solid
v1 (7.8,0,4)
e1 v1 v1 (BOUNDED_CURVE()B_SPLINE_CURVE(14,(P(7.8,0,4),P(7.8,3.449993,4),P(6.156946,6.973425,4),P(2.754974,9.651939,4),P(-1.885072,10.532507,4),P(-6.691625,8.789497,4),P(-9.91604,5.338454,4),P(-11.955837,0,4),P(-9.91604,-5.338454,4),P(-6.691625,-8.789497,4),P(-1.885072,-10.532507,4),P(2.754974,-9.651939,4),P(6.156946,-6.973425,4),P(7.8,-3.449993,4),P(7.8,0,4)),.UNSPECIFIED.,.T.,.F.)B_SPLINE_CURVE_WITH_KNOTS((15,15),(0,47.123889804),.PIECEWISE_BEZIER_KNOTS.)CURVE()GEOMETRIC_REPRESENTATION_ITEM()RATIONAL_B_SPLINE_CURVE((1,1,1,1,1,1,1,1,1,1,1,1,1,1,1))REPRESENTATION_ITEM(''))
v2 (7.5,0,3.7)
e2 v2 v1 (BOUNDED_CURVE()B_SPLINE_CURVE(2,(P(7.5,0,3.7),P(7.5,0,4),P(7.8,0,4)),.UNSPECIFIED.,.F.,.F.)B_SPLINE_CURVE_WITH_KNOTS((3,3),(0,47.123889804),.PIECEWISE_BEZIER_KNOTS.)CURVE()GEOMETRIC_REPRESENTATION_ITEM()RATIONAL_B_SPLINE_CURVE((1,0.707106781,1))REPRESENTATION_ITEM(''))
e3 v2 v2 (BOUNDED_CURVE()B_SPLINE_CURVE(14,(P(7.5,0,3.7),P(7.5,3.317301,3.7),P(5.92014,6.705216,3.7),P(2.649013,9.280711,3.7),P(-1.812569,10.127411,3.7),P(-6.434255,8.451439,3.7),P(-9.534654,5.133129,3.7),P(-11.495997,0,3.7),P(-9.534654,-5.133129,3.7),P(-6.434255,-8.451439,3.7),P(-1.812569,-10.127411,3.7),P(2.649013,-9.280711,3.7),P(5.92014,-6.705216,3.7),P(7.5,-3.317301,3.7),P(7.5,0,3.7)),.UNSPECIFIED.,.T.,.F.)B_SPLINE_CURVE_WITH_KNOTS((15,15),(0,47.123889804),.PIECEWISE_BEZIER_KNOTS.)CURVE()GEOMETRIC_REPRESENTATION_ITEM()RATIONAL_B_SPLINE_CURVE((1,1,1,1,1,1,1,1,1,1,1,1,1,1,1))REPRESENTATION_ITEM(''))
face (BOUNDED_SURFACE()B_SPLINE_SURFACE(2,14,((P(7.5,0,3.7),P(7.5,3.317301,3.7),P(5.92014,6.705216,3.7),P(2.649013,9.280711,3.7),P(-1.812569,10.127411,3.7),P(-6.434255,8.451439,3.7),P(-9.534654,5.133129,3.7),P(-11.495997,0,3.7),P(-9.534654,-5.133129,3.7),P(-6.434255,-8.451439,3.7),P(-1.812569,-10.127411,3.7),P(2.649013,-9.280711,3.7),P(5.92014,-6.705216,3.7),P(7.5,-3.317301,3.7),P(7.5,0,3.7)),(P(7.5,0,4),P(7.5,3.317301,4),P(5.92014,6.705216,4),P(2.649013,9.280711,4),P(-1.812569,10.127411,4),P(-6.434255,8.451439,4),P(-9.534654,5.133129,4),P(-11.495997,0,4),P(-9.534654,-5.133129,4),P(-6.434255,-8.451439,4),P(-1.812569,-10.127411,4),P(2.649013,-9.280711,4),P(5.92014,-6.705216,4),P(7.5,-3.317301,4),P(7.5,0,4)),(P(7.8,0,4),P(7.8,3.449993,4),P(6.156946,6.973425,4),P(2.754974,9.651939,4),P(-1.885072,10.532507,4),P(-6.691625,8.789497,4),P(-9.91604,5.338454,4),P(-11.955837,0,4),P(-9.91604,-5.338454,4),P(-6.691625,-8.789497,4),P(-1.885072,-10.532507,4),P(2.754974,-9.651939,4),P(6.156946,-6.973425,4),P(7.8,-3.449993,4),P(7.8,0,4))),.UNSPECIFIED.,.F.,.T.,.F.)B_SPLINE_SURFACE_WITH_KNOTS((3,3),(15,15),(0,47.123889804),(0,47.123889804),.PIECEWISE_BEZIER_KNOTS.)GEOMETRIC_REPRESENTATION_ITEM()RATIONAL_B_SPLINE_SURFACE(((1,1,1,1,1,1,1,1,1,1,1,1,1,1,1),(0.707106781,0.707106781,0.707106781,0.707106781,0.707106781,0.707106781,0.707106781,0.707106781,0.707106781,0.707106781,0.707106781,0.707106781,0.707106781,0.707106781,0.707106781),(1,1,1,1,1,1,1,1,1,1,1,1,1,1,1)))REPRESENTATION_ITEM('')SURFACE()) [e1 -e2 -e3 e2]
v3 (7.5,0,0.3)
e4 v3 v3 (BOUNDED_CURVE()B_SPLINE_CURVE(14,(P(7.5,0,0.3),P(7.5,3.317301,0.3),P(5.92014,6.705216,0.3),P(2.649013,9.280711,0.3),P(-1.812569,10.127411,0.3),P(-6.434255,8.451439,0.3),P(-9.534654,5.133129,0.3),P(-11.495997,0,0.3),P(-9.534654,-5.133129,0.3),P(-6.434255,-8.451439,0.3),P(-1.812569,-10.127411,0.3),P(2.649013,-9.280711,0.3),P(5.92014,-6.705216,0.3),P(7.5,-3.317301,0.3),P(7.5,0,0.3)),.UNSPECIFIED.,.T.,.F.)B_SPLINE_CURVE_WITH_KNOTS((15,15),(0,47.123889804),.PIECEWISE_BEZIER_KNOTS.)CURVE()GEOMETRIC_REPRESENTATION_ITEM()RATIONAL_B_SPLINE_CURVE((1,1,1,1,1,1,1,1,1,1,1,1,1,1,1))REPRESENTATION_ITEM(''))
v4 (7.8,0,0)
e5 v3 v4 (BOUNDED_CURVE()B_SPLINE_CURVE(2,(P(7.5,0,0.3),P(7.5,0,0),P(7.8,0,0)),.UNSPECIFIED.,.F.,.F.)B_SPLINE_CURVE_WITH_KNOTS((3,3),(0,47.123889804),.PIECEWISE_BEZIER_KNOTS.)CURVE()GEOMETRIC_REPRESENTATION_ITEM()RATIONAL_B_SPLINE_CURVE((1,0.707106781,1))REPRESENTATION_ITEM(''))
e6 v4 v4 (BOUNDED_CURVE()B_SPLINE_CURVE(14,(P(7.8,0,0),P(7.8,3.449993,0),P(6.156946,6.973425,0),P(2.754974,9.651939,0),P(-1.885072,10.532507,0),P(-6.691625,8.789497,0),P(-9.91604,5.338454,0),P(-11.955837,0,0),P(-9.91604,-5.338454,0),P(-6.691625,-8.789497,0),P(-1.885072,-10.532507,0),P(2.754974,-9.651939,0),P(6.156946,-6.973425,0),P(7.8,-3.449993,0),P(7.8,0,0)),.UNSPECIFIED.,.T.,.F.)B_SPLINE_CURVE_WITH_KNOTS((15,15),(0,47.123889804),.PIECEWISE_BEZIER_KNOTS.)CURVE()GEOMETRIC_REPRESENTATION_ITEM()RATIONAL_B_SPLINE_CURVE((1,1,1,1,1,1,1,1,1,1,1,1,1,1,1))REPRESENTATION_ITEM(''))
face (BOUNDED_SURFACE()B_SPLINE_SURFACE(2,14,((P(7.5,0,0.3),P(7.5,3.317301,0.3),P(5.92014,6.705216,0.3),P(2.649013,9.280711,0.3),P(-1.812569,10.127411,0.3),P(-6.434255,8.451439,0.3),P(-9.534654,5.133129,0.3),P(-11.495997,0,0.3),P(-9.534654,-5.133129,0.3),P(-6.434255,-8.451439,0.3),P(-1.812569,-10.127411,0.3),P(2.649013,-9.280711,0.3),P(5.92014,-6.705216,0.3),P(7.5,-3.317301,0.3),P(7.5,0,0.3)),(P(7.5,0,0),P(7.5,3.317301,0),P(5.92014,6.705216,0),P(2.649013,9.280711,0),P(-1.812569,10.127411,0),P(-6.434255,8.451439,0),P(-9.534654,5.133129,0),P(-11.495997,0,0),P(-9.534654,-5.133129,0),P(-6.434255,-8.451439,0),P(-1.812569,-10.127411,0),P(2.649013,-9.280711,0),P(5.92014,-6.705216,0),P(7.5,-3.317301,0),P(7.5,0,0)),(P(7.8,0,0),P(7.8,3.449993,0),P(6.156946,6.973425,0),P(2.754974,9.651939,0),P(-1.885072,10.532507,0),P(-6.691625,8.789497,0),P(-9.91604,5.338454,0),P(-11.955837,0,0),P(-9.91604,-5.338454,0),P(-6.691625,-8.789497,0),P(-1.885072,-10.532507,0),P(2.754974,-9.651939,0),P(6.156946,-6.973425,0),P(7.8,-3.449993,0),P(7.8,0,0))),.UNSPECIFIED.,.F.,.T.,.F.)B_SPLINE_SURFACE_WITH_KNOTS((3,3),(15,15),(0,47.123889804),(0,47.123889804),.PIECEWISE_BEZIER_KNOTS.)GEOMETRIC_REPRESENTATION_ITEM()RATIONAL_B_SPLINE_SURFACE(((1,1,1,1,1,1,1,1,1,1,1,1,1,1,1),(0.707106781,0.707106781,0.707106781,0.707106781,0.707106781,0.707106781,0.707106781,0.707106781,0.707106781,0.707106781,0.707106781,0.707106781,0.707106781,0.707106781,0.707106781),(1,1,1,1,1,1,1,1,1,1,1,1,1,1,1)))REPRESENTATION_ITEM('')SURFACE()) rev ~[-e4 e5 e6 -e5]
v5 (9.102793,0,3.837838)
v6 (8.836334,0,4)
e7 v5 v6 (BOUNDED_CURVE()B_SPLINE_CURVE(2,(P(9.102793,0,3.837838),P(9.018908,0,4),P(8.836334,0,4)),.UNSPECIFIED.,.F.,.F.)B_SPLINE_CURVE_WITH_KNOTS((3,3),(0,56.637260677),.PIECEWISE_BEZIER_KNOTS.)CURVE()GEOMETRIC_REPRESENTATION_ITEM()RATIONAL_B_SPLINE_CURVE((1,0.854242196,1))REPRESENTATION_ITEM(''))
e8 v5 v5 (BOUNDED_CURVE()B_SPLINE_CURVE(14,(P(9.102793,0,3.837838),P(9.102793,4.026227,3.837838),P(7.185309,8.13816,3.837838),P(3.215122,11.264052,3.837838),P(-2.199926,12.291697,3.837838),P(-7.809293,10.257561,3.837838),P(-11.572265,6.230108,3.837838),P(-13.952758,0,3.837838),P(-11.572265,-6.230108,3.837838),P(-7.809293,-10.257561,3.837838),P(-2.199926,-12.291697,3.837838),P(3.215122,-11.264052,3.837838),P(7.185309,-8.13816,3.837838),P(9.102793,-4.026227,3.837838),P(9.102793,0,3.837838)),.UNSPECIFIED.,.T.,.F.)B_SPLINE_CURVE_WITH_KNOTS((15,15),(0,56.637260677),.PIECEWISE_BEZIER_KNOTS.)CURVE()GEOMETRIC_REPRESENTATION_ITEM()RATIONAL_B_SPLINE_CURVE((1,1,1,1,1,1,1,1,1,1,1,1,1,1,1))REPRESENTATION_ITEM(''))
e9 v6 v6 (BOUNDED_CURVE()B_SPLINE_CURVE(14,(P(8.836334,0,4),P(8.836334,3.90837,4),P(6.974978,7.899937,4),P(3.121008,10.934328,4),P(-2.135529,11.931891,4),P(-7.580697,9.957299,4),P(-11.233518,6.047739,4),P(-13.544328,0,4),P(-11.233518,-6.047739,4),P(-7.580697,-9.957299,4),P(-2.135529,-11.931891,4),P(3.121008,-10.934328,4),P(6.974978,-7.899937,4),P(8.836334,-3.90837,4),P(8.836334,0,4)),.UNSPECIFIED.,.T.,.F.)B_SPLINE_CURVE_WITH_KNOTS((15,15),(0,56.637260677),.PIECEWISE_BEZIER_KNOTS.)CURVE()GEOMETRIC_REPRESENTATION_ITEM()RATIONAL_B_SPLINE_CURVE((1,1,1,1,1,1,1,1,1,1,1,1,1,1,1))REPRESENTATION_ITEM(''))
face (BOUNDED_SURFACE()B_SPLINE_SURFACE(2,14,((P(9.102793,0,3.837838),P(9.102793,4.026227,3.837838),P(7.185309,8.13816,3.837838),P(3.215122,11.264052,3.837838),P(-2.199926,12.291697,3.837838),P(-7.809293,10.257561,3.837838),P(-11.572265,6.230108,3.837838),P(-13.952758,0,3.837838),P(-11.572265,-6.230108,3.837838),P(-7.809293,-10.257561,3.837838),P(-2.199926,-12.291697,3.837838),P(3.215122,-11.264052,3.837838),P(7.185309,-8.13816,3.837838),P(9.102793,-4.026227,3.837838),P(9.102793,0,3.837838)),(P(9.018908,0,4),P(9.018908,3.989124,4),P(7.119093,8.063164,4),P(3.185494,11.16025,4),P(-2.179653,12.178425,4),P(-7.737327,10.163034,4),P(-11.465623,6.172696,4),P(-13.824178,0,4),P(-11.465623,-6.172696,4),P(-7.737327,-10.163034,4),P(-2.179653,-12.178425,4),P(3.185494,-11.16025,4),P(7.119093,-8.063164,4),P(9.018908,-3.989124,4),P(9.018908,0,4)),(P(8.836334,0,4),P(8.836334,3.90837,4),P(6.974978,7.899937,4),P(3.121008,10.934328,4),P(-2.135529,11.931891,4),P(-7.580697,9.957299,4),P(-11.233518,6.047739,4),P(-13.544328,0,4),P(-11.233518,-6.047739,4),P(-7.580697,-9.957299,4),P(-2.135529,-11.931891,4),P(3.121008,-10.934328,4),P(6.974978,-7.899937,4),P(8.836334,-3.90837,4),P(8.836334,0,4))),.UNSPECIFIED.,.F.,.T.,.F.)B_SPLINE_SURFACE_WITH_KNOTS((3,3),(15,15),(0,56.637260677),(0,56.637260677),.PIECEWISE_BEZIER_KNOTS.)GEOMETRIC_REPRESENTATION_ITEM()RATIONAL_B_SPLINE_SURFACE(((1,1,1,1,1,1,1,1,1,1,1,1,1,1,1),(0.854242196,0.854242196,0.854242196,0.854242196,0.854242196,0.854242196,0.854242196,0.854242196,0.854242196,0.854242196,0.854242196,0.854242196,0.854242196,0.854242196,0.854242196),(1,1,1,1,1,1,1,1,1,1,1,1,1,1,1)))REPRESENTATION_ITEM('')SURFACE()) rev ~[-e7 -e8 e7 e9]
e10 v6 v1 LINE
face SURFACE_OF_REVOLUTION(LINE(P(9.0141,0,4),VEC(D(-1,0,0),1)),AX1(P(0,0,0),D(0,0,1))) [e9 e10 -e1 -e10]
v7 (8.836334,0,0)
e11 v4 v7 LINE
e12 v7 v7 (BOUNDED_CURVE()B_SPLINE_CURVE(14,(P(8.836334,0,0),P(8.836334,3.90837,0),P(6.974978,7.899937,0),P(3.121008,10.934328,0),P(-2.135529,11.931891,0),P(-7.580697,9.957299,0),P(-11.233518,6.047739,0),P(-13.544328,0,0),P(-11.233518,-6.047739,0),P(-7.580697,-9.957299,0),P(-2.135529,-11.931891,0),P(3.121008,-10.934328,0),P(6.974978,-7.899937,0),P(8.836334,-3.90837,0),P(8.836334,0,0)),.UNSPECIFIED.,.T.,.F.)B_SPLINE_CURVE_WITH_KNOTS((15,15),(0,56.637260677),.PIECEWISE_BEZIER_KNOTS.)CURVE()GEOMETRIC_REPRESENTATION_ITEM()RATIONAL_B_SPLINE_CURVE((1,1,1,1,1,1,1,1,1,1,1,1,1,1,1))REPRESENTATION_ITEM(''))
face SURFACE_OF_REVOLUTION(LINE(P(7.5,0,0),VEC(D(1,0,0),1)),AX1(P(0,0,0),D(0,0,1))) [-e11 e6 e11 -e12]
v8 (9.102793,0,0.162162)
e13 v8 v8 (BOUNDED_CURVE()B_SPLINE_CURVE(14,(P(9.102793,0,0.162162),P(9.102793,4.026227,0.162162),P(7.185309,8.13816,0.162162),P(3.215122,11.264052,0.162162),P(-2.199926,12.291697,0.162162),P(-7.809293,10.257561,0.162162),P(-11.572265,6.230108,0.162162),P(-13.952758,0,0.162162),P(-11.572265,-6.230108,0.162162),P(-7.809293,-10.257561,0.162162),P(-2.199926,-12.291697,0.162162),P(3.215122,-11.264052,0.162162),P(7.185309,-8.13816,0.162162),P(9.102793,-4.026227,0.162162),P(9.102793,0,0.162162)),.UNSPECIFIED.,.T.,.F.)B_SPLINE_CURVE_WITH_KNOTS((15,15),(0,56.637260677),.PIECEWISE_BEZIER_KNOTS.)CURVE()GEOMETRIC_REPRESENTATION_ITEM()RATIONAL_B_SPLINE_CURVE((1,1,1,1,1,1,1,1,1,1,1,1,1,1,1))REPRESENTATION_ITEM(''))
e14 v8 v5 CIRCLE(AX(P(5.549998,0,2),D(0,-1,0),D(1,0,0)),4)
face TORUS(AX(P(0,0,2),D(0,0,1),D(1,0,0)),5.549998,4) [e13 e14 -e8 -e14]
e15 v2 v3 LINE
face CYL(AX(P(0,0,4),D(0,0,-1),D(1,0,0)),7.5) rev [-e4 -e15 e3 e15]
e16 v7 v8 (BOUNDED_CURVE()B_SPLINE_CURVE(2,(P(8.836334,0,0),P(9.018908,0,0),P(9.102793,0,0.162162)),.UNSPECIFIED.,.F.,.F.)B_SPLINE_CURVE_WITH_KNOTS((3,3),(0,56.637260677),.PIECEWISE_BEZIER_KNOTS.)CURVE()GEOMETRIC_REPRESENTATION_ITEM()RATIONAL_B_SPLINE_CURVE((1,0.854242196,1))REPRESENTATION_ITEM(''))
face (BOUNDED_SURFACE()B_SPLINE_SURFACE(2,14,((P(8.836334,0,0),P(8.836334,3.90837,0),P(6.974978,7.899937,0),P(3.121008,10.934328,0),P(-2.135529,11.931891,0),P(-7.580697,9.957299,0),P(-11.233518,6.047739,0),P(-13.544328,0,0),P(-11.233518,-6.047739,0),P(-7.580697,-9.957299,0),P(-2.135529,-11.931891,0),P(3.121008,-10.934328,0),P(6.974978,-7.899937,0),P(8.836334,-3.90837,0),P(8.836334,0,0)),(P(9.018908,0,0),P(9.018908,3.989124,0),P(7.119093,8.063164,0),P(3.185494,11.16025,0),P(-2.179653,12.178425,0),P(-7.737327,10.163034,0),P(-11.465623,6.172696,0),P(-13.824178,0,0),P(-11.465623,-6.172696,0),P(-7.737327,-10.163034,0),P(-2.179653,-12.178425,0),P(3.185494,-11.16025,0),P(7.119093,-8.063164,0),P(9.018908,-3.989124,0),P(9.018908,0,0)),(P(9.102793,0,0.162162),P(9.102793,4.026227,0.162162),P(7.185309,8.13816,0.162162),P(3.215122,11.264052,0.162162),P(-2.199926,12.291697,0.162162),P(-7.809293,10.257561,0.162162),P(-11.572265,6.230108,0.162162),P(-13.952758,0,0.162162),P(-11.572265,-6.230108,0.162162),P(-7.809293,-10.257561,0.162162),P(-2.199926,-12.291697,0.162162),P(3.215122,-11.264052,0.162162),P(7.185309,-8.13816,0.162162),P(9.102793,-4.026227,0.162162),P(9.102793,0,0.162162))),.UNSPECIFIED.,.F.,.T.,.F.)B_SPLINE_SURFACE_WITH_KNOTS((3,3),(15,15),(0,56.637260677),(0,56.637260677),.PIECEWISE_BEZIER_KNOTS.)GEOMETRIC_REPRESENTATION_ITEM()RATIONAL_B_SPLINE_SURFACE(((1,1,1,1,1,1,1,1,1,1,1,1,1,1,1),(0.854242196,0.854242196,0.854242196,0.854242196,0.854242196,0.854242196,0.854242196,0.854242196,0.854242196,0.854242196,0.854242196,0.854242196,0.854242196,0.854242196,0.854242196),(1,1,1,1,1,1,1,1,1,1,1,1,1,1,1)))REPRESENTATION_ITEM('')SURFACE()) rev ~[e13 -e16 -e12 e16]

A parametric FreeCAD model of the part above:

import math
import FreeCAD as App
import Part
import Sketcher
Q = App.Units.Quantity


def edges_at(feature, points):
    """Names of the edges that pass closest to the given points."""
    edges = feature.Shape.Edges
    near = lambda p: min(range(len(edges)), key=lambda i: edges[i].distToShape(Part.Vertex(*p))[0])
    return sorted({f"Edge{near(p) + 1}" for p in points})

doc = App.newDocument("Part")
body = doc.addObject("PartDesign::Body", "Body")

# Sketch on XZ plane
sketch1 = doc.addObject("Sketcher::SketchObject", "Sketch")
body.addObject(sketch1)
sketch1.AttachmentSupport = (doc.XZ_Plane, [""])
sketch1.MapMode = "FlatFace"
sketch1.addGeometry(Part.LineSegment(App.Vector(7.5, 4, 0), App.Vector(7.5, 0, 0)), False)
sketch1.addGeometry(Part.LineSegment(App.Vector(7.5, 0, 0), App.Vector(9, 0, 0)), False)
sketch1.addGeometry(Part.ArcOfCircle(Part.Circle(App.Vector(5.5, 2, 0), App.Vector(0, 0, 1), 4), math.radians(-30), math.radians(30)), False)
sketch1.addGeometry(Part.LineSegment(App.Vector(9, 4, 0), App.Vector(7.5, 4, 0)), False)
sketch1.addConstraint(Sketcher.Constraint("Coincident", 0, 2, 1, 1))
sketch1.addConstraint(Sketcher.Constraint("Coincident", 1, 2, 2, 1))
sketch1.addConstraint(Sketcher.Constraint("Coincident", 2, 2, 3, 1))
sketch1.addConstraint(Sketcher.Constraint("Coincident", 3, 2, 0, 1))
sketch1.addConstraint(Sketcher.Constraint("Vertical", 0))
sketch1.addConstraint(Sketcher.Constraint("Horizontal", 1))
sketch1.addConstraint(Sketcher.Constraint("Horizontal", 3))
sketch1.addConstraint(Sketcher.Constraint("PointOnObject", 0, 2, -1))
sketch1.addConstraint(Sketcher.Constraint("Vertical", 1, 2, 2, 2))
sketch1.addConstraint(Sketcher.Constraint("Radius", 2, Q("4 mm")))
sketch1.addConstraint(Sketcher.Constraint("DistanceY", 0, 2, 0, 1, Q("4 mm")))
sketch1.addConstraint(Sketcher.Constraint("DistanceX", -1, 1, 0, 2, Q("7.5 mm")))
sketch1.addConstraint(Sketcher.Constraint("DistanceX", -1, 1, 2, 3, Q("5.549998 mm")))

# Sketch on XY plane
sketch2 = doc.addObject("Sketcher::SketchObject", "Sketch001")
body.addObject(sketch2)
sketch2.AttachmentSupport = (doc.XY_Plane, [""])
sketch2.MapMode = "FlatFace"
sketch2.addGeometry(Part.Circle(App.Vector(0, 0, 0), App.Vector(0, 0, 1), 8), False)
sketch2.addConstraint(Sketcher.Constraint("Coincident", 0, 3, -1, 1))
sketch2.addConstraint(Sketcher.Constraint("Diameter", 0, Q("15 mm")))
doc.recompute()

additivepipe = doc.addObject("PartDesign::AdditivePipe", "AdditivePipe")
body.addObject(additivepipe)
additivepipe.Profile = sketch1
additivepipe.Spine = (sketch2, ["Edge1"])
doc.recompute()

fillet = doc.addObject("PartDesign::Fillet", "Fillet")
body.addObject(fillet)
fillet.Base = (additivepipe, edges_at(additivepipe, [
    (-7.5, 0, 4),
    (-7.5, 0, 0),
    (-9.014, 0, 4),
    (-9.014, 0, 0),
]))
fillet.Radius = 0.3

doc.recompute()
